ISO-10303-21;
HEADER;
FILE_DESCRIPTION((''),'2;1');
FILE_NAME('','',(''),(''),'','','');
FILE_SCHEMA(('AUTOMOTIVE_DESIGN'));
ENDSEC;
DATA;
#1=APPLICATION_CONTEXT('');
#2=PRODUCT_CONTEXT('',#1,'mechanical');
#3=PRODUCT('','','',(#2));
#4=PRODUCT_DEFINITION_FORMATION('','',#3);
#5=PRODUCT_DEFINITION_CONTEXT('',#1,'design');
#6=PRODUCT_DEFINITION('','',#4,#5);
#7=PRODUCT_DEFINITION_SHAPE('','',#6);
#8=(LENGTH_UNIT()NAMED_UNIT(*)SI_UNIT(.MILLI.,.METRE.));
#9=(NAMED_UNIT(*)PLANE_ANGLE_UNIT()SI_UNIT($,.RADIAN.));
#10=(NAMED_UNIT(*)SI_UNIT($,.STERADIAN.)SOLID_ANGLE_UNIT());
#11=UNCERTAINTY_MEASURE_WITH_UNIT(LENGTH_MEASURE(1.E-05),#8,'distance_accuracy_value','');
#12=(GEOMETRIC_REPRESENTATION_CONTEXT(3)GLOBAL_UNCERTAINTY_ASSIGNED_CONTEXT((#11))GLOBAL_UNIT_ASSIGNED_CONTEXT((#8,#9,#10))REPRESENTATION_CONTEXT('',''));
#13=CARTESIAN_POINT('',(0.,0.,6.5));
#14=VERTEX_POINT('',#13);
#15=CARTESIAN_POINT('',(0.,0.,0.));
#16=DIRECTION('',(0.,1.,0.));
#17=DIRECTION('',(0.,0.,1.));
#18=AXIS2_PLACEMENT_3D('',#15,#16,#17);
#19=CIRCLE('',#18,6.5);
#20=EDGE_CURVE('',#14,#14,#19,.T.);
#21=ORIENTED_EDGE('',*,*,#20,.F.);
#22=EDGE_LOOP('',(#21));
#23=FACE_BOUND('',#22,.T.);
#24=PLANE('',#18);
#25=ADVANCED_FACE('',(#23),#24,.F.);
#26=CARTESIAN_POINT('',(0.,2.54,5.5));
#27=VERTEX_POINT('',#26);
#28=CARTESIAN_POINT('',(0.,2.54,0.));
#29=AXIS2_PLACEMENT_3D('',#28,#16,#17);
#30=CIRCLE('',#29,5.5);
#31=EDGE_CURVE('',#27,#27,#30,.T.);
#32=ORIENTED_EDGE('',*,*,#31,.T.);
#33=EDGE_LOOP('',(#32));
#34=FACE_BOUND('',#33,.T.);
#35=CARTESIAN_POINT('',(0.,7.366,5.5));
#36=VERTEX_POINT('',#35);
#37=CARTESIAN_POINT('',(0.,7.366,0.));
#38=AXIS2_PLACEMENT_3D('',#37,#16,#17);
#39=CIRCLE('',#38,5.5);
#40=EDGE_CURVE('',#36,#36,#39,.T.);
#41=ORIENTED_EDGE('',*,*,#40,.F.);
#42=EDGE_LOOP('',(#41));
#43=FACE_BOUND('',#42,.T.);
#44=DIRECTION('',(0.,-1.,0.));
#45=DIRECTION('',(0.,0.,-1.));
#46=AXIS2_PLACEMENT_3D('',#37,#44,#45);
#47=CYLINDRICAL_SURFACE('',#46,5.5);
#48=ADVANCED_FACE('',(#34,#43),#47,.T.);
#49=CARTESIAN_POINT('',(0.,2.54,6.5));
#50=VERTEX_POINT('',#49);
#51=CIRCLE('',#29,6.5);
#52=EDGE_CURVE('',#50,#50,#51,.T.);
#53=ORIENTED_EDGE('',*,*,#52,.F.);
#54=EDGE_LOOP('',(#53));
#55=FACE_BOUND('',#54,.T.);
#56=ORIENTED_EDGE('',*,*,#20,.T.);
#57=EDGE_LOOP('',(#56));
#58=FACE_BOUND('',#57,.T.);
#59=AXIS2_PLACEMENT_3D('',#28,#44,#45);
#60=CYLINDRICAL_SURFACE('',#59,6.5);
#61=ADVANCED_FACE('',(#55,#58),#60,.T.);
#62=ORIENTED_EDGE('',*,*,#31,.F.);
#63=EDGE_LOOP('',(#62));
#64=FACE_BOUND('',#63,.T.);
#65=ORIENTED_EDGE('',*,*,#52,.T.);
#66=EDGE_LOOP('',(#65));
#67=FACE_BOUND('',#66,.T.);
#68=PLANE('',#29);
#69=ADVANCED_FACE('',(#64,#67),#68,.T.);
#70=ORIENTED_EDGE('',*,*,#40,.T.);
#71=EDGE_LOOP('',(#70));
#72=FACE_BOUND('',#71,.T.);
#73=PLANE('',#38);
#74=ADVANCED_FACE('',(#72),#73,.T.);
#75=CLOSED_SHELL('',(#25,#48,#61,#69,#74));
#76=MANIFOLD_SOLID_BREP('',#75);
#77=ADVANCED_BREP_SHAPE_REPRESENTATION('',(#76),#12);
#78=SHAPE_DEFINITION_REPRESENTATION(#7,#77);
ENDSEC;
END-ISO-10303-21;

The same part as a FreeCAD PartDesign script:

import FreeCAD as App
import Part
import Sketcher
Q = App.Units.Quantity

doc = App.newDocument("Part")
body = doc.addObject("PartDesign::Body", "Body")

sketch1 = doc.addObject("Sketcher::SketchObject", "Sketch")
body.addObject(sketch1)
sketch1.AttachmentSupport = (doc.XZ_Plane, [""])
sketch1.MapMode = "FlatFace"
sketch1.addGeometry(Part.Circle(App.Vector(0, 0, 0), App.Vector(0, 0, 1), 6), False)
sketch1.addConstraint([
    Sketcher.Constraint("Coincident", 0, 3, -1, 1),
    Sketcher.Constraint("Diameter", 0, Q("13 mm")),
])
pad1 = doc.addObject("PartDesign::Pad", "Pad")
body.addObject(pad1)
pad1.Profile = sketch1
pad1.Length = 2.54
pad1.Reversed = True

sketch2 = doc.addObject("Sketcher::SketchObject", "Sketch001")
body.addObject(sketch2)
sketch2.AttachmentSupport = (doc.XZ_Plane, [""])
sketch2.MapMode = "FlatFace"
sketch2.AttachmentOffset = App.Placement(App.Vector(0, 0, -2.54), App.Rotation())
sketch2.addGeometry(Part.Circle(App.Vector(0, 0, 0), App.Vector(0, 0, 1), 6), False)
sketch2.addConstraint([
    Sketcher.Constraint("Coincident", 0, 3, -1, 1),
    Sketcher.Constraint("Diameter", 0, Q("11 mm")),
])
pad2 = doc.addObject("PartDesign::Pad", "Pad001")
body.addObject(pad2)
pad2.Profile = sketch2
pad2.Length = 4.826
pad2.Reversed = True

doc.recompute()
